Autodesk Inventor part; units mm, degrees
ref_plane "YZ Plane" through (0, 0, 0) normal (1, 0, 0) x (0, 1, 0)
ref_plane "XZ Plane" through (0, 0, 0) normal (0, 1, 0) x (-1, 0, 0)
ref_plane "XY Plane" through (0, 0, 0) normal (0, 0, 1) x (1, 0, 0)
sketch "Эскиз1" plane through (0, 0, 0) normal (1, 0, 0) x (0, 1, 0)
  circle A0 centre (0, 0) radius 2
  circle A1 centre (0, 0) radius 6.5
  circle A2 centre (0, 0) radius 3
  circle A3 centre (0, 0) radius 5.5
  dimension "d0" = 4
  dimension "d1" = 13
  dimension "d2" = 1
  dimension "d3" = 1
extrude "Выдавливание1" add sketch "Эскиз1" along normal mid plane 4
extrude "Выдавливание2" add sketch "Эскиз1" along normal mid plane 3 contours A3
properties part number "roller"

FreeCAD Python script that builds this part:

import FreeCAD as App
import Part
import Sketcher

doc = App.newDocument("Part")
body = doc.addObject("PartDesign::Body", "Body")
body.AllowCompound = True

# Sketch on YZ plane
sketch1 = doc.addObject("Sketcher::SketchObject", "Sketch")
body.addObject(sketch1)
sketch1.AttachmentSupport = (doc.YZ_Plane, [""])
sketch1.MapMode = "FlatFace"
sketch1.addGeometry(Part.Circle(App.Vector(0, 0, 0), App.Vector(0, 0, 1), 6.5), False)
sketch1.addGeometry(Part.Circle(App.Vector(0, 0, 0), App.Vector(0, 0, 1), 5.5), False)
sketch1.addGeometry(Part.Circle(App.Vector(0, 0, 0), App.Vector(0, 0, 1), 3), False)
sketch1.addGeometry(Part.Circle(App.Vector(0, 0, 0), App.Vector(0, 0, 1), 2), False)
sketch1.addConstraint(Sketcher.Constraint("Coincident", 0, 3, -1, 1))
sketch1.addConstraint(Sketcher.Constraint("Coincident", 1, 3, -1, 1))
sketch1.addConstraint(Sketcher.Constraint("Coincident", 2, 3, -1, 1))
sketch1.addConstraint(Sketcher.Constraint("Coincident", 3, 3, -1, 1))
sketch1.addConstraint(Sketcher.Constraint("Diameter", 0, 13.0))
sketch1.addConstraint(Sketcher.Constraint("Diameter", 3, 4.0))
sketch1.addConstraint(Sketcher.Constraint("Diameter", 1, 11.0))
sketch1.addConstraint(Sketcher.Constraint("Diameter", 2, 6.0))
pad1 = doc.addObject("PartDesign::Pad", "Pad")
body.addObject(pad1)
pad1.Profile = sketch1
pad1.Length = 4
pad1.Midplane = True

# Sketch on YZ plane
sketch2 = doc.addObject("Sketcher::SketchObject", "Sketch001")
body.addObject(sketch2)
sketch2.AttachmentSupport = (doc.YZ_Plane, [""])
sketch2.MapMode = "FlatFace"
sketch2.addGeometry(Part.Circle(App.Vector(0, 0, 0), App.Vector(0, 0, 1), 5.5), False)
sketch2.addGeometry(Part.Circle(App.Vector(0, 0, 0), App.Vector(0, 0, 1), 3), False)
sketch2.addConstraint(Sketcher.Constraint("Coincident", 0, 3, -1, 1))
sketch2.addConstraint(Sketcher.Constraint("Coincident", 1, 3, -1, 1))
sketch2.addConstraint(Sketcher.Constraint("Diameter", 0, 11.0))
sketch2.addConstraint(Sketcher.Constraint("Diameter", 1, 6.0))
pad2 = doc.addObject("PartDesign::Pad", "Pad001")
body.addObject(pad2)
pad2.Profile = sketch2
pad2.Length = 3
pad2.Midplane = True

doc.recompute()
